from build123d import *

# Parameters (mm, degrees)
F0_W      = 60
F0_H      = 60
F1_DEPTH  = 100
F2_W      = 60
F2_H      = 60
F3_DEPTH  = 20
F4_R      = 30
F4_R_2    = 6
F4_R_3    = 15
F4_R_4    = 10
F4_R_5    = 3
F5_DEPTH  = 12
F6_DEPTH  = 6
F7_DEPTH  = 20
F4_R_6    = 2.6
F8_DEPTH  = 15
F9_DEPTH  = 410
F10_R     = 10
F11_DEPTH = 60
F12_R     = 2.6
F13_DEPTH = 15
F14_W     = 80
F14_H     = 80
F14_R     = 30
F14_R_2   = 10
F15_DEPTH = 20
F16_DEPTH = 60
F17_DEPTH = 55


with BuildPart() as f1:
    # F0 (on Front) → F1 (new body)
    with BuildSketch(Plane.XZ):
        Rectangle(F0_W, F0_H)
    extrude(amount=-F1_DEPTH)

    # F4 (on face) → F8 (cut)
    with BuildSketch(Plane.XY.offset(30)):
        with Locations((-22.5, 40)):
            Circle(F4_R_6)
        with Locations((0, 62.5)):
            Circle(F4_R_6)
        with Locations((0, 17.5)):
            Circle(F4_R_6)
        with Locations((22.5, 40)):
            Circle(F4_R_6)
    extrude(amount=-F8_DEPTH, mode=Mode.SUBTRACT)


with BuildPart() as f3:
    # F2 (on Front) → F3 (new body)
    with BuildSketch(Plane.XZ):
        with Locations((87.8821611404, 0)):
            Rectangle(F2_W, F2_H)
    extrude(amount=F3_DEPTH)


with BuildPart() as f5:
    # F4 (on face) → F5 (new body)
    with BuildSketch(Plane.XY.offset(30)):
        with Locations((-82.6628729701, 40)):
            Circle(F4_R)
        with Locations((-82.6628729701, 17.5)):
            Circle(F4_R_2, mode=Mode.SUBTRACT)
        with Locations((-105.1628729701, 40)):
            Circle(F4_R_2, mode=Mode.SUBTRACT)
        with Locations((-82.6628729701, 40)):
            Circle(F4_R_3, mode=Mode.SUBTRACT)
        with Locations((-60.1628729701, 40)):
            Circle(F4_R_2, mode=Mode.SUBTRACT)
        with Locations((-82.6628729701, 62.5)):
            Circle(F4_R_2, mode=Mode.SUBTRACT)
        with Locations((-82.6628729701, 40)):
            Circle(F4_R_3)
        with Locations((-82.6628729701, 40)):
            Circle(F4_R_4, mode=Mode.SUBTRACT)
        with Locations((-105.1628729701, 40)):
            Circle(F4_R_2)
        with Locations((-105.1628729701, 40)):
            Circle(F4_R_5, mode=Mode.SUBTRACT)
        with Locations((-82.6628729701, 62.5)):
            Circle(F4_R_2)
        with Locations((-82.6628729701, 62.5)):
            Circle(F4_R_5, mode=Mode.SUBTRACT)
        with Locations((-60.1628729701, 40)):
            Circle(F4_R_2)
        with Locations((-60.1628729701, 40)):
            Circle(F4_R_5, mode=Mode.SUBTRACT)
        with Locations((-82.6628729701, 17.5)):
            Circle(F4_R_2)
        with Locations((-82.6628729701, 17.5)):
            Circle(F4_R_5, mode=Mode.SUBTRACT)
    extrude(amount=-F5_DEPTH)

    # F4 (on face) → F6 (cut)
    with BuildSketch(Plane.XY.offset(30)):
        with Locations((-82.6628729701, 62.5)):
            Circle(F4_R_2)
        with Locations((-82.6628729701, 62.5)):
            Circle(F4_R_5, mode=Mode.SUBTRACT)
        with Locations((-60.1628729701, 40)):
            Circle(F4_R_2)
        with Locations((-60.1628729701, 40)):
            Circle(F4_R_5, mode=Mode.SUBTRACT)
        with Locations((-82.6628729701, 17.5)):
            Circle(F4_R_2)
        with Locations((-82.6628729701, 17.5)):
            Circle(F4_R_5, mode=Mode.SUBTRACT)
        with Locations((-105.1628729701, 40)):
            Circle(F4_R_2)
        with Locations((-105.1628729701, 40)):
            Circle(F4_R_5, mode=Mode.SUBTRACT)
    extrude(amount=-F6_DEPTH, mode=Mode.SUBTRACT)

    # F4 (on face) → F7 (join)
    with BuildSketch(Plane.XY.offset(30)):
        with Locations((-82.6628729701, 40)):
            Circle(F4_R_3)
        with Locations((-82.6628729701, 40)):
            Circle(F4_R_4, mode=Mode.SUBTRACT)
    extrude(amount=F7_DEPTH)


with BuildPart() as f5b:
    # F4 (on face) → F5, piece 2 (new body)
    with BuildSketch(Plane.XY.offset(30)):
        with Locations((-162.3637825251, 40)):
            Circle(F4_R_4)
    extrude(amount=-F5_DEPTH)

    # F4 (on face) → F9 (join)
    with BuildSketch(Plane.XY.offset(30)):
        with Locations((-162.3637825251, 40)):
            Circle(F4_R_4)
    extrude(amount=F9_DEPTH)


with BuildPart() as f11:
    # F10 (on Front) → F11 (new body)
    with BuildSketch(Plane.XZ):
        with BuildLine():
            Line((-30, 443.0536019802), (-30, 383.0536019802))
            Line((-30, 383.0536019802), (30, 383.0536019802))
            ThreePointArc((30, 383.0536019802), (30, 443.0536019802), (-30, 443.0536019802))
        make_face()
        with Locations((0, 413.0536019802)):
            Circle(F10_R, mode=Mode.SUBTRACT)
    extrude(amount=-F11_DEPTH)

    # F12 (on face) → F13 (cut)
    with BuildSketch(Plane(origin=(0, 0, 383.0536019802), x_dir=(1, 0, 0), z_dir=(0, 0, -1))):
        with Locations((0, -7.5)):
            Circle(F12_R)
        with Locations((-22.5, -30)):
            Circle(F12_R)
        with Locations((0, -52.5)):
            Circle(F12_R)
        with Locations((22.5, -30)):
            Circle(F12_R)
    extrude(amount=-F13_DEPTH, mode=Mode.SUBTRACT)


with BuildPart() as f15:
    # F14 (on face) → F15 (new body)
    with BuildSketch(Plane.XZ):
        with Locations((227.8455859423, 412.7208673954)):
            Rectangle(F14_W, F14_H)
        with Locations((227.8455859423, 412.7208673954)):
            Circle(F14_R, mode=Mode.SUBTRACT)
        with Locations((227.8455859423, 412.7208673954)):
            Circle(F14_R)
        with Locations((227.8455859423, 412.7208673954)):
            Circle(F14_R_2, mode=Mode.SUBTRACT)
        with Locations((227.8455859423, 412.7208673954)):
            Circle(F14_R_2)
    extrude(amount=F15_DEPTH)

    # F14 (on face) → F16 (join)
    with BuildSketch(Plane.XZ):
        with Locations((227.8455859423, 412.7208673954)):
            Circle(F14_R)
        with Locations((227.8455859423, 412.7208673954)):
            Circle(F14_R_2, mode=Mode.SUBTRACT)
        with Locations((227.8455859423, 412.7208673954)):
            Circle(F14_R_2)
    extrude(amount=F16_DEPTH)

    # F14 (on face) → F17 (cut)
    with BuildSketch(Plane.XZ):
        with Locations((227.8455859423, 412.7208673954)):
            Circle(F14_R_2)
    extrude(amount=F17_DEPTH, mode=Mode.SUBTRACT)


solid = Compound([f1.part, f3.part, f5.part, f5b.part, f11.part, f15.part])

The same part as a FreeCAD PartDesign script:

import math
import FreeCAD as App
import Part
import Sketcher
Q = App.Units.Quantity

doc = App.newDocument("Part")
body = doc.addObject("PartDesign::Body", "Body")

# Sketch on XZ plane
sketch1 = body.newObject("Sketcher::SketchObject", "Sketch")
sketch1.AttachmentSupport = (doc.getObject("XZ_Plane"), [""])
sketch1.MapMode = "FlatFace"
sketch1.addGeometry([
    Part.LineSegment(App.Vector(-30, 30, 0), App.Vector(-30, -30, 0)),
    Part.LineSegment(App.Vector(-30, -30, 0), App.Vector(30, -30, 0)),
    Part.LineSegment(App.Vector(30, -30, 0), App.Vector(30, 30, 0)),
    Part.LineSegment(App.Vector(30, 30, 0), App.Vector(-30, 30, 0)),
], False)
sketch1.addConstraint([
    Sketcher.Constraint("Coincident", 0, 2, 1, 1),
    Sketcher.Constraint("Coincident", 1, 2, 2, 1),
    Sketcher.Constraint("Coincident", 2, 2, 3, 1),
    Sketcher.Constraint("Coincident", 3, 2, 0, 1),
    Sketcher.Constraint("Vertical", 0),
    Sketcher.Constraint("Horizontal", 1),
    Sketcher.Constraint("Vertical", 2),
    Sketcher.Constraint("Horizontal", 3),
    Sketcher.Constraint("Symmetric", 0, 2, 2, 2, -1, 1),
    Sketcher.Constraint("Equal", 3, 0),
    Sketcher.Constraint("DistanceX", 1, 1, 1, 2, Q("60 mm")),
])
pad1 = body.newObject("PartDesign::Pad", "Pad")
pad1.Profile = sketch1
pad1.Length = 100
pad1.Reversed = True

# Sketch on XY plane
sketch2 = body.newObject("Sketcher::SketchObject", "Sketch001")
sketch2.AttachmentSupport = (doc.getObject("XY_Plane"), [""])
sketch2.MapMode = "FlatFace"
sketch2.AttachmentOffset = App.Placement(App.Vector(0, 0, 30), App.Rotation())
sketch2.addGeometry([
    Part.Circle(App.Vector(-22.5, 40, 0), App.Vector(0, 0, 1), 2.6),
    Part.Circle(App.Vector(0, 62.5, 0), App.Vector(0, 0, 1), 2.6),
    Part.Circle(App.Vector(0, 17.5, 0), App.Vector(0, 0, 1), 2.6),
    Part.Circle(App.Vector(22.5, 40, 0), App.Vector(0, 0, 1), 2.6),
], False)
sketch2.addConstraint([
    Sketcher.Constraint("Equal", 0, 1),
    Sketcher.Constraint("Equal", 1, 2),
    Sketcher.Constraint("Equal", 2, 3),
    Sketcher.Constraint("Symmetric", 0, 3, 3, 3, -2),
    Sketcher.Constraint("PointOnObject", 1, 3, -2),
    Sketcher.Constraint("PointOnObject", 2, 3, -2),
    Sketcher.Constraint("Diameter", 0, Q("5.2 mm")),
    Sketcher.Constraint("DistanceY", -1, 1, 0, 3, Q("40 mm")),
    Sketcher.Constraint("DistanceY", 2, 3, 1, 3, Q("45 mm")),
    Sketcher.Constraint("DistanceX", 0, 3, 3, 3, Q("45 mm")),
    Sketcher.Constraint("DistanceY", -1, 1, 1, 3, Q("62.5 mm")),
])
pocket1 = body.newObject("PartDesign::Pocket", "Pocket")
pocket1.Profile = sketch2
pocket1.Length = 15
body2 = doc.addObject("PartDesign::Body", "Body001")

# Sketch on XZ plane
sketch3 = body2.newObject("Sketcher::SketchObject", "Sketch002")
sketch3.AttachmentSupport = (doc.getObject("XZ_Plane001"), [""])
sketch3.MapMode = "FlatFace"
sketch3.addGeometry([
    Part.LineSegment(App.Vector(57.882161, 30, 0), App.Vector(57.882161, -30, 0)),
    Part.LineSegment(App.Vector(57.882161, -30, 0), App.Vector(117.882161, -30, 0)),
    Part.LineSegment(App.Vector(117.882161, -30, 0), App.Vector(117.882161, 30, 0)),
    Part.LineSegment(App.Vector(117.882161, 30, 0), App.Vector(57.882161, 30, 0)),
], False)
sketch3.addConstraint([
    Sketcher.Constraint("Coincident", 0, 2, 1, 1),
    Sketcher.Constraint("Coincident", 1, 2, 2, 1),
    Sketcher.Constraint("Coincident", 2, 2, 3, 1),
    Sketcher.Constraint("Coincident", 3, 2, 0, 1),
    Sketcher.Constraint("Vertical", 0),
    Sketcher.Constraint("Horizontal", 1),
    Sketcher.Constraint("Vertical", 2),
    Sketcher.Constraint("Horizontal", 3),
    Sketcher.Constraint("Equal", 3, 0),
    Sketcher.Constraint("DistanceX", 1, 1, 1, 2, Q("60 mm")),
    Sketcher.Constraint("DistanceY", 0, 2, -1, 1, Q("30 mm")),
    Sketcher.Constraint("DistanceX", -1, 1, 0, 2, Q("57.882161 mm")),
])
pad2 = body2.newObject("PartDesign::Pad", "Pad001")
pad2.Profile = sketch3
pad2.Length = 20
body3 = doc.addObject("PartDesign::Body", "Body002")

# Sketch on XY plane
sketch4 = body3.newObject("Sketcher::SketchObject", "Sketch003")
sketch4.AttachmentSupport = (doc.getObject("XY_Plane002"), [""])
sketch4.MapMode = "FlatFace"
sketch4.AttachmentOffset = App.Placement(App.Vector(0, 0, 30), App.Rotation())
sketch4.addGeometry([
    Part.Circle(App.Vector(-82.662873, 40, 0), App.Vector(0, 0, 1), 30),  # 0
    Part.Circle(App.Vector(-82.662873, 17.5, 0), App.Vector(0, 0, 1), 3),  # 1
    Part.Circle(App.Vector(-105.162873, 40, 0), App.Vector(0, 0, 1), 3),  # 2
    Part.Circle(App.Vector(-82.662873, 40, 0), App.Vector(0, 0, 1), 10),  # 3
    Part.Circle(App.Vector(-60.162873, 40, 0), App.Vector(0, 0, 1), 3),  # 4
    Part.Circle(App.Vector(-82.662873, 62.5, 0), App.Vector(0, 0, 1), 3),  # 5
], False)
sketch4.addConstraint([
    Sketcher.Constraint("Coincident", 3, 3, 0, 3),
    Sketcher.Constraint("Equal", 1, 2),
    Sketcher.Constraint("Equal", 2, 4),
    Sketcher.Constraint("Equal", 4, 5),
    Sketcher.Constraint("Horizontal", 0, 3, 2, 3),
    Sketcher.Constraint("Horizontal", 3, 3, 4, 3),
    Sketcher.Constraint("Vertical", 0, 3, 1, 3),
    Sketcher.Constraint("Vertical", 3, 3, 5, 3),
    Sketcher.Constraint("Diameter", 0, Q("60 mm")),
    Sketcher.Constraint("Diameter", 1, Q("6 mm")),
    Sketcher.Constraint("Diameter", 3, Q("20 mm")),
    Sketcher.Constraint("DistanceY", -1, 1, 0, 3, Q("40 mm")),
    Sketcher.Constraint("DistanceX", 2, 3, 4, 3, Q("45 mm")),
    Sketcher.Constraint("DistanceY", 1, 3, 5, 3, Q("45 mm")),
    Sketcher.Constraint("DistanceY", -1, 1, 1, 3, Q("17.5 mm")),
    Sketcher.Constraint("DistanceX", 2, 3, 0, 3, Q("22.5 mm")),
    Sketcher.Constraint("DistanceX", 0, 3, -1, 1, Q("82.662873 mm")),
])
pad3 = body3.newObject("PartDesign::Pad", "Pad002")
pad3.Profile = sketch4
pad3.Length = 12
pad3.Reversed = True

# Sketch on XY plane
sketch5 = body3.newObject("Sketcher::SketchObject", "Sketch004")
sketch5.AttachmentSupport = (doc.getObject("XY_Plane002"), [""])
sketch5.MapMode = "FlatFace"
sketch5.AttachmentOffset = App.Placement(App.Vector(0, 0, 30), App.Rotation())
sketch5.addGeometry([
    Part.Circle(App.Vector(-82.662873, 62.5, 0), App.Vector(0, 0, 1), 6),  # 0
    Part.Circle(App.Vector(-82.662873, 62.5, 0), App.Vector(0, 0, 1), 3),  # 1
    Part.Circle(App.Vector(-60.162873, 40, 0), App.Vector(0, 0, 1), 6),  # 2
    Part.Circle(App.Vector(-60.162873, 40, 0), App.Vector(0, 0, 1), 3),  # 3
    Part.Circle(App.Vector(-82.662873, 17.5, 0), App.Vector(0, 0, 1), 6),  # 4
    Part.Circle(App.Vector(-82.662873, 17.5, 0), App.Vector(0, 0, 1), 3),  # 5
    Part.Circle(App.Vector(-105.162873, 40, 0), App.Vector(0, 0, 1), 6),  # 6
    Part.Circle(App.Vector(-105.162873, 40, 0), App.Vector(0, 0, 1), 3),  # 7
], False)
sketch5.addConstraint([
    Sketcher.Constraint("Coincident", 1, 3, 0, 3),
    Sketcher.Constraint("Coincident", 3, 3, 2, 3),
    Sketcher.Constraint("Coincident", 5, 3, 4, 3),
    Sketcher.Constraint("Coincident", 7, 3, 6, 3),
    Sketcher.Constraint("Equal", 0, 2),
    Sketcher.Constraint("Equal", 1, 3),
    Sketcher.Constraint("Equal", 2, 4),
    Sketcher.Constraint("Equal", 3, 5),
    Sketcher.Constraint("Equal", 4, 6),
    Sketcher.Constraint("Equal", 5, 7),
    Sketcher.Constraint("Horizontal", 3, 3, 6, 3),
    Sketcher.Constraint("Vertical", 1, 3, 4, 3),
    Sketcher.Constraint("Diameter", 0, Q("12 mm")),
    Sketcher.Constraint("Diameter", 1, Q("6 mm")),
    Sketcher.Constraint("DistanceY", -1, 1, 2, 3, Q("40 mm")),
    Sketcher.Constraint("DistanceY", 4, 3, 0, 3, Q("45 mm")),
    Sketcher.Constraint("DistanceX", 6, 3, 2, 3, Q("45 mm")),
    Sketcher.Constraint("DistanceY", -1, 1, 0, 3, Q("62.5 mm")),
    Sketcher.Constraint("DistanceX", 0, 3, 2, 3, Q("22.5 mm")),
    Sketcher.Constraint("DistanceX", 0, 3, -1, 1, Q("82.662873 mm")),
])
pocket2 = body3.newObject("PartDesign::Pocket", "Pocket001")
pocket2.Profile = sketch5
pocket2.Length = 6

# Sketch on XY plane
sketch6 = body3.newObject("Sketcher::SketchObject", "Sketch005")
sketch6.AttachmentSupport = (doc.getObject("XY_Plane002"), [""])
sketch6.MapMode = "FlatFace"
sketch6.AttachmentOffset = App.Placement(App.Vector(0, 0, 30), App.Rotation())
sketch6.addGeometry([
    Part.Circle(App.Vector(-82.662873, 40, 0), App.Vector(0, 0, 1), 15),
    Part.Circle(App.Vector(-82.662873, 40, 0), App.Vector(0, 0, 1), 10),
], False)
sketch6.addConstraint([
    Sketcher.Constraint("Coincident", 1, 3, 0, 3),
    Sketcher.Constraint("Diameter", 0, Q("30 mm")),
    Sketcher.Constraint("Diameter", 1, Q("20 mm")),
    Sketcher.Constraint("DistanceY", -1, 1, 0, 3, Q("40 mm")),
    Sketcher.Constraint("DistanceX", 0, 3, -1, 1, Q("82.662873 mm")),
])
pad4 = body3.newObject("PartDesign::Pad", "Pad003")
pad4.Profile = sketch6
pad4.Length = 20
body4 = doc.addObject("PartDesign::Body", "Body003")

# Sketch on XY plane
sketch7 = body4.newObject("Sketcher::SketchObject", "Sketch006")
sketch7.AttachmentSupport = (doc.getObject("XY_Plane003"), [""])
sketch7.MapMode = "FlatFace"
sketch7.AttachmentOffset = App.Placement(App.Vector(0, 0, 30), App.Rotation())
sketch7.addGeometry(Part.Circle(App.Vector(-162.363783, 40, 0), App.Vector(0, 0, 1), 10), False)
sketch7.addConstraint([
    Sketcher.Constraint("Diameter", 0, Q("20 mm")),
    Sketcher.Constraint("DistanceY", -1, 1, 0, 3, Q("40 mm")),
    Sketcher.Constraint("DistanceX", 0, 3, -1, 1, Q("162.363783 mm")),
])
pad5 = body4.newObject("PartDesign::Pad", "Pad004")
pad5.Profile = sketch7
pad5.Length = 12
pad5.Reversed = True

# Sketch on XY plane
sketch8 = body4.newObject("Sketcher::SketchObject", "Sketch007")
sketch8.AttachmentSupport = (doc.getObject("XY_Plane003"), [""])
sketch8.MapMode = "FlatFace"
sketch8.AttachmentOffset = App.Placement(App.Vector(0, 0, 30), App.Rotation())
sketch8.addGeometry(Part.Circle(App.Vector(-162.363783, 40, 0), App.Vector(0, 0, 1), 10), False)
sketch8.addConstraint([
    Sketcher.Constraint("Diameter", 0, Q("20 mm")),
    Sketcher.Constraint("DistanceY", -1, 1, 0, 3, Q("40 mm")),
    Sketcher.Constraint("DistanceX", 0, 3, -1, 1, Q("162.363783 mm")),
])
pad6 = body4.newObject("PartDesign::Pad", "Pad005")
pad6.Profile = sketch8
pad6.Length = 410
body5 = doc.addObject("PartDesign::Body", "Body004")

# Sketch on XZ plane
sketch9 = body5.newObject("Sketcher::SketchObject", "Sketch008")
sketch9.AttachmentSupport = (doc.getObject("XZ_Plane004"), [""])
sketch9.MapMode = "FlatFace"
sketch9.addGeometry([
    Part.LineSegment(App.Vector(-30, 443.053602, 0), App.Vector(-30, 383.053602, 0)),
    Part.LineSegment(App.Vector(-30, 383.053602, 0), App.Vector(30, 383.053602, 0)),
    Part.ArcOfCircle(Part.Circle(App.Vector(0, 413.053602, 0), App.Vector(0, 0, 1), 42.426407), math.radians(-45), math.radians(135)),
    Part.Circle(App.Vector(0, 413.053602, 0), App.Vector(0, 0, 1), 10),
], False)
sketch9.addConstraint([
    Sketcher.Constraint("Coincident", 0, 2, 1, 1),
    Sketcher.Constraint("Coincident", 1, 2, 2, 1),
    Sketcher.Constraint("Coincident", 2, 2, 0, 1),
    Sketcher.Constraint("Vertical", 0),
    Sketcher.Constraint("Horizontal", 1),
    Sketcher.Constraint("Coincident", 3, 3, 2, 3),
    Sketcher.Constraint("PointOnObject", 2, 3, -2),
    Sketcher.Constraint("Equal", 1, 0),
    Sketcher.Constraint("Diameter", 3, Q("20 mm")),
    Sketcher.Constraint("DistanceX", 1, 1, 1, 2, Q("60 mm")),
    Sketcher.Constraint("DistanceX", 0, 2, -1, 1, Q("30 mm")),
    Sketcher.Constraint("DistanceY", -1, 1, 2, 3, Q("413.053602 mm")),
])
pad7 = body5.newObject("PartDesign::Pad", "Pad006")
pad7.Profile = sketch9
pad7.Length = 60
pad7.Reversed = True

# Sketch on XY plane
sketch10 = body5.newObject("Sketcher::SketchObject", "Sketch009")
sketch10.AttachmentSupport = (doc.getObject("XY_Plane004"), [""])
sketch10.MapMode = "FlatFace"
sketch10.AttachmentOffset = App.Placement(App.Vector(0, 0, 383.053602), App.Rotation())
sketch10.addGeometry([
    Part.Circle(App.Vector(0, 7.5, 0), App.Vector(0, 0, 1), 2.6),
    Part.Circle(App.Vector(-22.5, 30, 0), App.Vector(0, 0, 1), 2.6),
    Part.Circle(App.Vector(0, 52.5, 0), App.Vector(0, 0, 1), 2.6),
    Part.Circle(App.Vector(22.5, 30, 0), App.Vector(0, 0, 1), 2.6),
], False)
sketch10.addConstraint([
    Sketcher.Constraint("Equal", 0, 1),
    Sketcher.Constraint("Equal", 1, 2),
    Sketcher.Constraint("Equal", 2, 3),
    Sketcher.Constraint("Symmetric", 1, 3, 3, 3, -2),
    Sketcher.Constraint("PointOnObject", 0, 3, -2),
    Sketcher.Constraint("PointOnObject", 2, 3, -2),
    Sketcher.Constraint("Diameter", 0, Q("5.2 mm")),
    Sketcher.Constraint("DistanceY", -1, 1, 1, 3, Q("30 mm")),
    Sketcher.Constraint("DistanceY", 0, 3, 2, 3, Q("45 mm")),
    Sketcher.Constraint("DistanceX", 1, 3, 3, 3, Q("45 mm")),
    Sketcher.Constraint("DistanceY", -1, 1, 0, 3, Q("7.5 mm")),
])
pocket3 = body5.newObject("PartDesign::Pocket", "Pocket002")
pocket3.Profile = sketch10
pocket3.Length = 15
pocket3.Reversed = True
body6 = doc.addObject("PartDesign::Body", "Body005")

# Sketch on XZ plane
sketch11 = body6.newObject("Sketcher::SketchObject", "Sketch010")
sketch11.AttachmentSupport = (doc.getObject("XZ_Plane005"), [""])
sketch11.MapMode = "FlatFace"
sketch11.addGeometry([
    Part.LineSegment(App.Vector(187.845586, 452.720867, 0), App.Vector(187.845586, 372.720867, 0)),
    Part.LineSegment(App.Vector(187.845586, 372.720867, 0), App.Vector(267.845586, 372.720867, 0)),
    Part.LineSegment(App.Vector(267.845586, 372.720867, 0), App.Vector(267.845586, 452.720867, 0)),
    Part.LineSegment(App.Vector(267.845586, 452.720867, 0), App.Vector(187.845586, 452.720867, 0)),
], False)
sketch11.addConstraint([
    Sketcher.Constraint("Coincident", 0, 2, 1, 1),
    Sketcher.Constraint("Coincident", 1, 2, 2, 1),
    Sketcher.Constraint("Coincident", 2, 2, 3, 1),
    Sketcher.Constraint("Coincident", 3, 2, 0, 1),
    Sketcher.Constraint("Vertical", 0),
    Sketcher.Constraint("Horizontal", 1),
    Sketcher.Constraint("Vertical", 2),
    Sketcher.Constraint("Horizontal", 3),
    Sketcher.Constraint("Equal", 3, 0),
    Sketcher.Constraint("DistanceX", 1, 1, 1, 2, Q("80 mm")),
    Sketcher.Constraint("DistanceX", -1, 1, 0, 2, Q("187.845586 mm")),
    Sketcher.Constraint("DistanceY", -1, 1, 0, 2, Q("372.720867 mm")),
])
pad8 = body6.newObject("PartDesign::Pad", "Pad007")
pad8.Profile = sketch11
pad8.Length = 20

# Sketch on XZ plane
sketch12 = body6.newObject("Sketcher::SketchObject", "Sketch011")
sketch12.AttachmentSupport = (doc.getObject("XZ_Plane005"), [""])
sketch12.MapMode = "FlatFace"
sketch12.addGeometry(Part.Circle(App.Vector(227.845586, 412.720867, 0), App.Vector(0, 0, 1), 30), False)
sketch12.addConstraint([
    Sketcher.Constraint("Diameter", 0, Q("60 mm")),
    Sketcher.Constraint("DistanceX", -1, 1, 0, 3, Q("227.845586 mm")),
    Sketcher.Constraint("DistanceY", -1, 1, 0, 3, Q("412.720867 mm")),
])
pad9 = body6.newObject("PartDesign::Pad", "Pad008")
pad9.Profile = sketch12
pad9.Length = 60

# Sketch on XZ plane
sketch13 = body6.newObject("Sketcher::SketchObject", "Sketch012")
sketch13.AttachmentSupport = (doc.getObject("XZ_Plane005"), [""])
sketch13.MapMode = "FlatFace"
sketch13.addGeometry(Part.Circle(App.Vector(227.845586, 412.720867, 0), App.Vector(0, 0, 1), 10), False)
sketch13.addConstraint([
    Sketcher.Constraint("Diameter", 0, Q("20 mm")),
    Sketcher.Constraint("DistanceX", -1, 1, 0, 3, Q("227.845586 mm")),
    Sketcher.Constraint("DistanceY", -1, 1, 0, 3, Q("412.720867 mm")),
])
pocket4 = body6.newObject("PartDesign::Pocket", "Pocket003")
pocket4.Profile = sketch13
pocket4.Length = 55
pocket4.Reversed = True

doc.recompute()
